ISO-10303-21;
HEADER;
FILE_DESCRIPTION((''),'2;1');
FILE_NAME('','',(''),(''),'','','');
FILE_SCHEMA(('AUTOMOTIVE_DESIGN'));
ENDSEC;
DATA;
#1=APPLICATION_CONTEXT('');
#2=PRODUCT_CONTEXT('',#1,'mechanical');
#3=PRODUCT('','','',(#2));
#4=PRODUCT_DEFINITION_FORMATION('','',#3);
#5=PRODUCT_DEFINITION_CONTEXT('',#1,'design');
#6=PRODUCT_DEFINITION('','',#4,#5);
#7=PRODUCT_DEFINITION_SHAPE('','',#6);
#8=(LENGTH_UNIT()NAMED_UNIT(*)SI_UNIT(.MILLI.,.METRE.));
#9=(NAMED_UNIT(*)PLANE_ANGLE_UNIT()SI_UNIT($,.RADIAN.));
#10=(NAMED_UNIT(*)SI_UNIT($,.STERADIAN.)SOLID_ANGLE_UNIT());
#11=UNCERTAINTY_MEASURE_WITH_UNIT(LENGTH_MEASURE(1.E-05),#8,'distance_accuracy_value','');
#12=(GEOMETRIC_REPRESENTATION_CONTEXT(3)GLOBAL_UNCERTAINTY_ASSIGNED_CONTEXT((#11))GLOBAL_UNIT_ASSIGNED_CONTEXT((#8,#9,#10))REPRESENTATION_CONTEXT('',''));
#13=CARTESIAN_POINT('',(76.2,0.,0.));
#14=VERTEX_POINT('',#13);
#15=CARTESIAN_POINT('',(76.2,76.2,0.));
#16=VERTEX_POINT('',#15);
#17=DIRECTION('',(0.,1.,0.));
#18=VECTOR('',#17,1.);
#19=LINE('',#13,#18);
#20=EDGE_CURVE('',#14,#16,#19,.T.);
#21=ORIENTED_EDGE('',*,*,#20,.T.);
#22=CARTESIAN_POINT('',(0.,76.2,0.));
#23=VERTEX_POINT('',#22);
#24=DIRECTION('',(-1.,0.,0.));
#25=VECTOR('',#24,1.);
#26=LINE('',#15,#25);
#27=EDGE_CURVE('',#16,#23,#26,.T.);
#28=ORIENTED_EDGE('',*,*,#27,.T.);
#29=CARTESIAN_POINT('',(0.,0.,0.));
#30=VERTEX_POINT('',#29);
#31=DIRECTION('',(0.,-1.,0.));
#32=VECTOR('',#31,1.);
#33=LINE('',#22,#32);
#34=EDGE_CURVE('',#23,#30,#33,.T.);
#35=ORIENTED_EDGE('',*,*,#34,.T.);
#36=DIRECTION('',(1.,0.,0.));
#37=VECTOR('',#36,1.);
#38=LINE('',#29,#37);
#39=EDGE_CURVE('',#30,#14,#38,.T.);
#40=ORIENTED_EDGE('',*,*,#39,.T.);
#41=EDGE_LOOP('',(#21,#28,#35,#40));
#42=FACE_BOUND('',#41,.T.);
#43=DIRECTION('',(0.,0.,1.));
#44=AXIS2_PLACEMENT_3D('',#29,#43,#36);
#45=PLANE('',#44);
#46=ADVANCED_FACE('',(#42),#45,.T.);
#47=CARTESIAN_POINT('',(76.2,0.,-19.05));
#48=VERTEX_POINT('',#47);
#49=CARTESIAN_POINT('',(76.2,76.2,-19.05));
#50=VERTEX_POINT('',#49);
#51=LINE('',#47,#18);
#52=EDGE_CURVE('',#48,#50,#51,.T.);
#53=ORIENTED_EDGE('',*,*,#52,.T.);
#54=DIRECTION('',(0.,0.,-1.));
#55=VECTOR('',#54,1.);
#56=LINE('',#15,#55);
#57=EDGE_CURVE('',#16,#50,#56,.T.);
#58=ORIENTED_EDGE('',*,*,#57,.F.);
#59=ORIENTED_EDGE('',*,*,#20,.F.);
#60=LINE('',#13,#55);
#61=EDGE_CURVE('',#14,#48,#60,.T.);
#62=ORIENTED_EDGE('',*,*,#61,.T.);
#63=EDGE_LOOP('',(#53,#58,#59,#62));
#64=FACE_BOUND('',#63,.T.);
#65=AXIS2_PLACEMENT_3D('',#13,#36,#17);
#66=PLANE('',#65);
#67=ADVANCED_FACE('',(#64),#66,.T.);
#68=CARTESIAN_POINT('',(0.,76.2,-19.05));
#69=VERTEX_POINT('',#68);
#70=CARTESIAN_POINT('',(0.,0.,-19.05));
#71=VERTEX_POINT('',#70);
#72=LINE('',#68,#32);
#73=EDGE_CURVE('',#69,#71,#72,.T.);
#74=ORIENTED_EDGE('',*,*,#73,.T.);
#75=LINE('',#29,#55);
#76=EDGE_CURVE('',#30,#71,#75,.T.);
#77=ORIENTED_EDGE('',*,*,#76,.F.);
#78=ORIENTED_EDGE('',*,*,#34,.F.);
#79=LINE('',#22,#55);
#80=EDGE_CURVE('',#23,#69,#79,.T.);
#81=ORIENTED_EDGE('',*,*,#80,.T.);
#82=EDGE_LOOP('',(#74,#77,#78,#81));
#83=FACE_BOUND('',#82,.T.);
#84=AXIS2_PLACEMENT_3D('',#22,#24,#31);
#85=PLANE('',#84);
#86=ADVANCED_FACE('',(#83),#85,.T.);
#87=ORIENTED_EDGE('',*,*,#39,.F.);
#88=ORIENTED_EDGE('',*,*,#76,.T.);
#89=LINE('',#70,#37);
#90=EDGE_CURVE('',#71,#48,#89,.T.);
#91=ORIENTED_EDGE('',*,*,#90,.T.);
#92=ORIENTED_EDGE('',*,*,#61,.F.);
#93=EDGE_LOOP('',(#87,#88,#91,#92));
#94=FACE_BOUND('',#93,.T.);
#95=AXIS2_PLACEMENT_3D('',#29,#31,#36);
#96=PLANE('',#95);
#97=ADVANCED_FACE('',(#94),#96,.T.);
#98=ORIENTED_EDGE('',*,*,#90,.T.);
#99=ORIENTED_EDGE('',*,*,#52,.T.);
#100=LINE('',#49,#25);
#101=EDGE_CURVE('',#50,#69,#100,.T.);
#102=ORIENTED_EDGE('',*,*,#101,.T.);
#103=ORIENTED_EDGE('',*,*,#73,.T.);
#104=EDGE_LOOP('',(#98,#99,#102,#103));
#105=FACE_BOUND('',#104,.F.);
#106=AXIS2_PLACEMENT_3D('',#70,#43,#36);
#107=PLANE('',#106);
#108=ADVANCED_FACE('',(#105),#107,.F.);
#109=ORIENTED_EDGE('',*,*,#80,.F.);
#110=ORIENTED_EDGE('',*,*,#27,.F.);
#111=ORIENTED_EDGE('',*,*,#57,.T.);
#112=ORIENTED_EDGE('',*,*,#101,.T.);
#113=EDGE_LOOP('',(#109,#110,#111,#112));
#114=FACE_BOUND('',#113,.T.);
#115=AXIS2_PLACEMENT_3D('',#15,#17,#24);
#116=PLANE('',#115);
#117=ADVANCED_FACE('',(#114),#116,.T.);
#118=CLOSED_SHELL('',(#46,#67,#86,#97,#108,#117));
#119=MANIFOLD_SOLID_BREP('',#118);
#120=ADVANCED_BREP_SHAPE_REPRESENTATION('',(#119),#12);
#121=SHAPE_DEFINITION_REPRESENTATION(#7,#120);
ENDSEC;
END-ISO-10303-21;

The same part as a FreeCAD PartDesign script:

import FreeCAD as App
import Part
import Sketcher
Q = App.Units.Quantity

doc = App.newDocument("Part")
body = doc.addObject("PartDesign::Body", "Body")

# Sketch on XY plane
sketch1 = body.newObject("Sketcher::SketchObject", "Sketch")
sketch1.AttachmentSupport = (doc.getObject("XY_Plane"), [""])
sketch1.MapMode = "FlatFace"
sketch1.addGeometry(Part.LineSegment(App.Vector(76.2, 76.2, 0), App.Vector(0, 76.2, 0)), False)
sketch1.addGeometry(Part.LineSegment(App.Vector(0, 76.2, 0), App.Vector(0, 0, 0)), False)
sketch1.addGeometry(Part.LineSegment(App.Vector(0, 0, 0), App.Vector(76.2, 0, 0)), False)
sketch1.addGeometry(Part.LineSegment(App.Vector(76.2, 0, 0), App.Vector(76.2, 76.2, 0)), False)
sketch1.addConstraint(Sketcher.Constraint("Coincident", 0, 2, 1, 1))
sketch1.addConstraint(Sketcher.Constraint("Coincident", 1, 2, 2, 1))
sketch1.addConstraint(Sketcher.Constraint("Coincident", 2, 2, 3, 1))
sketch1.addConstraint(Sketcher.Constraint("Coincident", 3, 2, 0, 1))
sketch1.addConstraint(Sketcher.Constraint("Horizontal", 0))
sketch1.addConstraint(Sketcher.Constraint("Vertical", 1))
sketch1.addConstraint(Sketcher.Constraint("Horizontal", 2))
sketch1.addConstraint(Sketcher.Constraint("Vertical", 3))
sketch1.addConstraint(Sketcher.Constraint("Coincident", 1, 2, -1, 1))
sketch1.addConstraint(Sketcher.Constraint("Equal", 2, 1))
sketch1.addConstraint(Sketcher.Constraint("DistanceX", 0, 2, 0, 1, Q("3 in")))
pad1 = body.newObject("PartDesign::Pad", "Pad")
pad1.Profile = sketch1
pad1.Length = Q("0.75 in")
pad1.Reversed = True

doc.recompute()
